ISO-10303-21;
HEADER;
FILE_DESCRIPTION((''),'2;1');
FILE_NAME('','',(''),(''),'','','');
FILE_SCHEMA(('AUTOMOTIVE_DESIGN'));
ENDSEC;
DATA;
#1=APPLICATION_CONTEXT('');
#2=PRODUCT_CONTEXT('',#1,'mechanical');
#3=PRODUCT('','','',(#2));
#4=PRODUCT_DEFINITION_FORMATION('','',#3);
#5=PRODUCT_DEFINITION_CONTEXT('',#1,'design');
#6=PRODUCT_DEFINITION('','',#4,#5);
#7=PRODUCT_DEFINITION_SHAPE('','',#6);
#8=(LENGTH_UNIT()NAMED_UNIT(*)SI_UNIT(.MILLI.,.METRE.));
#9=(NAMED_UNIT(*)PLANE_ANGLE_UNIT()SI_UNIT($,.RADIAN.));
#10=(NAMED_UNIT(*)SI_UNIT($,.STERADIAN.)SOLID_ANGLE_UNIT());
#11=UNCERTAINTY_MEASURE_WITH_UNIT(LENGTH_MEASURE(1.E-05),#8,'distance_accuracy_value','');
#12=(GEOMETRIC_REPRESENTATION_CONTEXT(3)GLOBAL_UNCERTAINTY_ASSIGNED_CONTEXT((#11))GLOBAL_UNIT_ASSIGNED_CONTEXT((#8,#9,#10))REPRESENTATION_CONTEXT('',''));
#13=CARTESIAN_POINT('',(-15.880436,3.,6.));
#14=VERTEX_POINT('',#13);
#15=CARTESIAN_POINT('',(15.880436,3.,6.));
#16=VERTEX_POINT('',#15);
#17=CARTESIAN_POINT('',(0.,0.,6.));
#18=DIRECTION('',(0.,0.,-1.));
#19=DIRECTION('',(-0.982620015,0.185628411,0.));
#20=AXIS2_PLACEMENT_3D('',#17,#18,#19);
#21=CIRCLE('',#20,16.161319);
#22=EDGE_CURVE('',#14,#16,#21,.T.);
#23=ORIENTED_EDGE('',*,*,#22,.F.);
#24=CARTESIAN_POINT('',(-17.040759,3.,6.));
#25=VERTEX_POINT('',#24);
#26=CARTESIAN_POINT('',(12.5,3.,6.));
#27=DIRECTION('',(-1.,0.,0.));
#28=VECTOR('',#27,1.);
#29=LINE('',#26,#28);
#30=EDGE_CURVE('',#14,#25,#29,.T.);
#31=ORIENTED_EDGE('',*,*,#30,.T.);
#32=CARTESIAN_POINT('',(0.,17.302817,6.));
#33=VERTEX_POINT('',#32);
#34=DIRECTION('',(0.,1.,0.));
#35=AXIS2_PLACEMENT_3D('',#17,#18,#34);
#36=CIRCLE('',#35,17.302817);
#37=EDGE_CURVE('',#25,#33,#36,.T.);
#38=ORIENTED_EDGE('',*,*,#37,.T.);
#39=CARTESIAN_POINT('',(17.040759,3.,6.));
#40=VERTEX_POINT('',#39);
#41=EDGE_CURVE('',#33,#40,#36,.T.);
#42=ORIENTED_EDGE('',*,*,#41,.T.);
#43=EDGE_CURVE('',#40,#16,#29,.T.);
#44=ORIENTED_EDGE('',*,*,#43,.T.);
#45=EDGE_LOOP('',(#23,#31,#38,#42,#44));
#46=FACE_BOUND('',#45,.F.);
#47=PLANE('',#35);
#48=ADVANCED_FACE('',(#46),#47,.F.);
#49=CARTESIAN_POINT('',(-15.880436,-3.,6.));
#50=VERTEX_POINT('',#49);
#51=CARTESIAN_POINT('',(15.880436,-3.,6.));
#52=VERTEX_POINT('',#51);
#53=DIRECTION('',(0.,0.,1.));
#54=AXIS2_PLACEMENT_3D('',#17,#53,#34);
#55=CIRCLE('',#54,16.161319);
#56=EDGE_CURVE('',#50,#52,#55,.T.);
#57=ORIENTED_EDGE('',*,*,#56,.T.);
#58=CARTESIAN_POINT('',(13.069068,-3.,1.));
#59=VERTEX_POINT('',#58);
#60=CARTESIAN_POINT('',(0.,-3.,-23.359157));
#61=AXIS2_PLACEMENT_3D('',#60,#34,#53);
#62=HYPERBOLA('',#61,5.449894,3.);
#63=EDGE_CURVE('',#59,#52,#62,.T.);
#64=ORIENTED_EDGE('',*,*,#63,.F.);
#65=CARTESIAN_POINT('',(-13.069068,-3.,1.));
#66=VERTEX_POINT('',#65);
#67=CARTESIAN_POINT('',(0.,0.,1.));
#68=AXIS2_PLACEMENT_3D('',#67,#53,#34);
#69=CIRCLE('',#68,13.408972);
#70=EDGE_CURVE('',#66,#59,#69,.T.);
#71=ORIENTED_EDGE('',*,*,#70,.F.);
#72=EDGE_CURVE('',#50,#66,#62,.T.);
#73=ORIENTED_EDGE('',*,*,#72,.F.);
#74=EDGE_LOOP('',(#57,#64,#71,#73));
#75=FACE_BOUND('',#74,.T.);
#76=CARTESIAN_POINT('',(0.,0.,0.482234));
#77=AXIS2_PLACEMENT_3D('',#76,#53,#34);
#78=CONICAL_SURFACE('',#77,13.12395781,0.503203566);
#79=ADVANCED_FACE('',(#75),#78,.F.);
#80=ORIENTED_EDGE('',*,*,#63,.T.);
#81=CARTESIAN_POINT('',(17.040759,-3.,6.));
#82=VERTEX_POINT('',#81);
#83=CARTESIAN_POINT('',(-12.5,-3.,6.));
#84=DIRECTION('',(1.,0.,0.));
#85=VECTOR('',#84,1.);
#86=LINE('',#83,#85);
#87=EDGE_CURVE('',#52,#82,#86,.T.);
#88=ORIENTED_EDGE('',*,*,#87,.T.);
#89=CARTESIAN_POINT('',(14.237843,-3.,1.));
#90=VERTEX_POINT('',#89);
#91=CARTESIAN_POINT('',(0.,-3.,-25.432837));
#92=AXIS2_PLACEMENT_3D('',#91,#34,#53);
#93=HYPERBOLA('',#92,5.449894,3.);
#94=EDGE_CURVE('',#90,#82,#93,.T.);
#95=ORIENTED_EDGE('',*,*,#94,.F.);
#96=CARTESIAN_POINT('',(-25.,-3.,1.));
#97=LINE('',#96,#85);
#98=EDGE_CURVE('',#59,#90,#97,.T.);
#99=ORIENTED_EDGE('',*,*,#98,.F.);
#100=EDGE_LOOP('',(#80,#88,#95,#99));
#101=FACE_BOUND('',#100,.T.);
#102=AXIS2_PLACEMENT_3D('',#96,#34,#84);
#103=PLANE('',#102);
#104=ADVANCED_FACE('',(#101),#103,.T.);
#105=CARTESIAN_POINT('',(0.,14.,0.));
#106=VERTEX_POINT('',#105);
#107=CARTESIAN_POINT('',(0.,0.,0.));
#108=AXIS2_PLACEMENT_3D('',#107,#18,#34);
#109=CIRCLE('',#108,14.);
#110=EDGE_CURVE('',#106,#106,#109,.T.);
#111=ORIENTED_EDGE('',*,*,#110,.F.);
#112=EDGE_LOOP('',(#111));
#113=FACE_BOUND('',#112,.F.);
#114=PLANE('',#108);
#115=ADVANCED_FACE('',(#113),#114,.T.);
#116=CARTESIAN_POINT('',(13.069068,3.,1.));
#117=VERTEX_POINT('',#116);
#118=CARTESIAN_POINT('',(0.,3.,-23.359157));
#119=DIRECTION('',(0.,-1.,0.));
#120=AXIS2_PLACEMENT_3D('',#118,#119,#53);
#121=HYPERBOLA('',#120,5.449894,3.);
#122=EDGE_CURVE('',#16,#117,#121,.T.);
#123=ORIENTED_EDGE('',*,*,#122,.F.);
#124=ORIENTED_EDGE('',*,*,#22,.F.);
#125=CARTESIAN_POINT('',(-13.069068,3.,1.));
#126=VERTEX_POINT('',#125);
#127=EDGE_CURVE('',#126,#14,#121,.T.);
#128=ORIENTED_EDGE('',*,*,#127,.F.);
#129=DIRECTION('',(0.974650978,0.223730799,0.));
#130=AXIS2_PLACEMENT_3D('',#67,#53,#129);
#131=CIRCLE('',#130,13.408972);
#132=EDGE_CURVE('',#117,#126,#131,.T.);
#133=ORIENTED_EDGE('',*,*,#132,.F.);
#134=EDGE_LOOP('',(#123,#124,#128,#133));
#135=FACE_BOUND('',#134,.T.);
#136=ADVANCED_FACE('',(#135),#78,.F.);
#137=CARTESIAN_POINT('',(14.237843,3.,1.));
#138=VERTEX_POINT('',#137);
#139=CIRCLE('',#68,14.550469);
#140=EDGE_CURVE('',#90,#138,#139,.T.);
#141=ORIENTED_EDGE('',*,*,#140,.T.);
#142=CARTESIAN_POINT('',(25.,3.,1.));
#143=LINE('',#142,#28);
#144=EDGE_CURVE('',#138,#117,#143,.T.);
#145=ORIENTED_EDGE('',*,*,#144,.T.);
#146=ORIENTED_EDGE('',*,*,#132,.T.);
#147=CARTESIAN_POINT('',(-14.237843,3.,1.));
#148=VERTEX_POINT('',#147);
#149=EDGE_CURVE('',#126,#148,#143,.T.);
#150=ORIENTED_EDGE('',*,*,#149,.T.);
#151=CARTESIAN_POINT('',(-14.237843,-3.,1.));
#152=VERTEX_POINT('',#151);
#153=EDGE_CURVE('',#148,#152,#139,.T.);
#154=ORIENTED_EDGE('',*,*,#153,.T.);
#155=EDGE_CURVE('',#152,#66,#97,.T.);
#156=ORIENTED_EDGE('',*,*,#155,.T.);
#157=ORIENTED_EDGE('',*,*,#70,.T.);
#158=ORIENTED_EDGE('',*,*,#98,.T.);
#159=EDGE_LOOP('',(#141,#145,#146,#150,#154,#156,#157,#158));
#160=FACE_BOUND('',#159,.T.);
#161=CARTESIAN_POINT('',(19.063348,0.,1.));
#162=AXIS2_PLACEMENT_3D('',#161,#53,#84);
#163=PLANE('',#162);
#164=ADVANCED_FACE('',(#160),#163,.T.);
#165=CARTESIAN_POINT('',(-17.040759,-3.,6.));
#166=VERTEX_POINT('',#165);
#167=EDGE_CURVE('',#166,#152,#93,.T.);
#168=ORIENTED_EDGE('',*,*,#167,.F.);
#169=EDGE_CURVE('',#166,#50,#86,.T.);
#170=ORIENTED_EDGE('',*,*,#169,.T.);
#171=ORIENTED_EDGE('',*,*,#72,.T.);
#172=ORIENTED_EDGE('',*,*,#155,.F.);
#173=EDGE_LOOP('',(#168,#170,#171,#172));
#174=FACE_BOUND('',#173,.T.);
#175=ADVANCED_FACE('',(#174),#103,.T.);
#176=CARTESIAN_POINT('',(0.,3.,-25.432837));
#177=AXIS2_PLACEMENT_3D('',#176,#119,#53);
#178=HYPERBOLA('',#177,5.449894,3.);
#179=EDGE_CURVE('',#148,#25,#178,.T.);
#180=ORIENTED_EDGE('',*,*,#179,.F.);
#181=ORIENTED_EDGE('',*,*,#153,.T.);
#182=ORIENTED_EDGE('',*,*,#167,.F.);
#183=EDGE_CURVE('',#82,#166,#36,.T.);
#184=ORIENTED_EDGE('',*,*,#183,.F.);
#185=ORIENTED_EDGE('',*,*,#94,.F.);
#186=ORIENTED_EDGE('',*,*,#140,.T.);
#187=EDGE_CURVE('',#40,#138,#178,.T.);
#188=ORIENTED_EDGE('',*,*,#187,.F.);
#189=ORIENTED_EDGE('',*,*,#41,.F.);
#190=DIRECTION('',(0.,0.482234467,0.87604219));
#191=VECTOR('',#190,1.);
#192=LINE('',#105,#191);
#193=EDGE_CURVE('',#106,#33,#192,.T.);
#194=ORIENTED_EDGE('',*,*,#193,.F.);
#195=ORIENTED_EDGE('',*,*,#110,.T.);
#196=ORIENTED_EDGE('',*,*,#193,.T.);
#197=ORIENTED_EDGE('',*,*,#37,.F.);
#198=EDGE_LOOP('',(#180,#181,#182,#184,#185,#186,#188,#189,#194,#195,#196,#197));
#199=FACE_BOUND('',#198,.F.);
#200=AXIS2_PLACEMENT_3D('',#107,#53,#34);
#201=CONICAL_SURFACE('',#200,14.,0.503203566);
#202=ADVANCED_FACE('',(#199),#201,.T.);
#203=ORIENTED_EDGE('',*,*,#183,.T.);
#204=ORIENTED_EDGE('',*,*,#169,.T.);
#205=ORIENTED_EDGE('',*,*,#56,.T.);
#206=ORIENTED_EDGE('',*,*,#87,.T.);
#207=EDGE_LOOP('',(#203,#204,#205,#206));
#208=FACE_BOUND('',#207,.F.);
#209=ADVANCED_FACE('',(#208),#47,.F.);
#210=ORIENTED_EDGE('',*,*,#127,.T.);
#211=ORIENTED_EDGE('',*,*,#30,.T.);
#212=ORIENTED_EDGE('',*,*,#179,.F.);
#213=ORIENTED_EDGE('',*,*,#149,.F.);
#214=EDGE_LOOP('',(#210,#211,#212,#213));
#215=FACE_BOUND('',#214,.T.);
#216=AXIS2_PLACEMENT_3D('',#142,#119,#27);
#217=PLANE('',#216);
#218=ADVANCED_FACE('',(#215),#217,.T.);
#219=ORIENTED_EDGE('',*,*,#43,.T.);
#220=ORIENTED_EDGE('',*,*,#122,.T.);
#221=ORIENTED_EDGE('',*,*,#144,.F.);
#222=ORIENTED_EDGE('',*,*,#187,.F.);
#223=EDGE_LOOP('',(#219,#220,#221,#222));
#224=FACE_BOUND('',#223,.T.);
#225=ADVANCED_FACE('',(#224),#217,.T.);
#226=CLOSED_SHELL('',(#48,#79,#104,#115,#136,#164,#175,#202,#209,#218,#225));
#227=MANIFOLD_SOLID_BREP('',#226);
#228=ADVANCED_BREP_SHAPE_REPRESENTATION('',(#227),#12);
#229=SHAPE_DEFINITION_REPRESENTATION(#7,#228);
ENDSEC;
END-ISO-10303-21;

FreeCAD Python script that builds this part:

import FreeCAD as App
import Part
import Sketcher

V = App.Vector


def faces_at(feature, points):
    """Names of the faces that lie closest to the given points."""
    faces = feature.Shape.Faces
    near = lambda p: min(range(len(faces)), key=lambda i: faces[i].distToShape(Part.Vertex(*p))[0])
    return sorted({f"Face{near(p) + 1}" for p in points})

doc = App.newDocument("Part")
body = doc.addObject("PartDesign::Body", "Body")

# Sketch on YZ plane
sketch1 = body.newObject("Sketcher::SketchObject", "Sketch")
sketch1.AttachmentSupport = (doc.getObject("YZ_Plane"), [""])
sketch1.MapMode = "FlatFace"
sketch1.addGeometry(Part.LineSegment(V(0, 6, 0), V(0, 0, 0)), False)
sketch1.addGeometry(Part.LineSegment(V(0, 0, 0), V(14, 0, 0)), False)
sketch1.addGeometry(Part.LineSegment(V(14, 0, 0), V(17.302817, 6, 0)), False)
sketch1.addGeometry(Part.LineSegment(V(17.302817, 6, 0), V(0, 6, 0)), False)
sketch1.addConstraint(Sketcher.Constraint("Coincident", 0, 2, 1, 1))
sketch1.addConstraint(Sketcher.Constraint("Coincident", 1, 2, 2, 1))
sketch1.addConstraint(Sketcher.Constraint("Coincident", 2, 2, 3, 1))
sketch1.addConstraint(Sketcher.Constraint("Coincident", 3, 2, 0, 1))
sketch1.addConstraint(Sketcher.Constraint("Vertical", 0))
sketch1.addConstraint(Sketcher.Constraint("Horizontal", 1))
sketch1.addConstraint(Sketcher.Constraint("Horizontal", 3))
sketch1.addConstraint(Sketcher.Constraint("Coincident", 0, 2, -1, 1))
sketch1.addConstraint(Sketcher.Constraint("DistanceX", 1, 1, 1, 2, 14.0))
sketch1.addConstraint(Sketcher.Constraint("DistanceY", 0, 2, 0, 1, 6.0))
sketch1.addConstraint(Sketcher.Constraint("DistanceX", 3, 2, 3, 1, 17.302817))
revolution = body.newObject("PartDesign::Revolution", "Revolution")
revolution.Profile = sketch1
revolution.ReferenceAxis = (sketch1, ["V_Axis"])
revolution.Angle = 360
doc.recompute()

thickness = body.newObject("PartDesign::Thickness", "Thickness")
thickness.Base = (revolution, faces_at(revolution, [(0, 0, 6)]))
thickness.Value = 1
thickness.Reversed = True
thickness.Join = "Arc"

# Sketch on XY plane
sketch2 = body.newObject("Sketcher::SketchObject", "Sketch001")
sketch2.AttachmentSupport = (doc.getObject("XY_Plane"), [""])
sketch2.MapMode = "FlatFace"
sketch2.AttachmentOffset = App.Placement(V(0, 0, 1), App.Rotation())
sketch2.addGeometry(Part.LineSegment(V(25, -3, 0), V(25, 3, 0)), False)
sketch2.addGeometry(Part.LineSegment(V(25, 3, 0), V(-25, 3, 0)), False)
sketch2.addGeometry(Part.LineSegment(V(-25, 3, 0), V(-25, -3, 0)), False)
sketch2.addGeometry(Part.LineSegment(V(-25, -3, 0), V(25, -3, 0)), False)
sketch2.addConstraint(Sketcher.Constraint("Coincident", 0, 2, 1, 1))
sketch2.addConstraint(Sketcher.Constraint("Coincident", 1, 2, 2, 1))
sketch2.addConstraint(Sketcher.Constraint("Coincident", 2, 2, 3, 1))
sketch2.addConstraint(Sketcher.Constraint("Coincident", 3, 2, 0, 1))
sketch2.addConstraint(Sketcher.Constraint("Vertical", 0))
sketch2.addConstraint(Sketcher.Constraint("Horizontal", 1))
sketch2.addConstraint(Sketcher.Constraint("Vertical", 2))
sketch2.addConstraint(Sketcher.Constraint("Horizontal", 3))
sketch2.addConstraint(Sketcher.Constraint("Symmetric", 0, 2, 2, 2, -1, 1))
sketch2.addConstraint(Sketcher.Constraint("DistanceX", 1, 2, 1, 1, 50.0))
sketch2.addConstraint(Sketcher.Constraint("DistanceY", 0, 1, 0, 2, 6.0))
pocket1 = body.newObject("PartDesign::Pocket", "Pocket")
pocket1.Profile = sketch2
pocket1.Type = "ThroughAll"
pocket1.Reversed = True

doc.recompute()
